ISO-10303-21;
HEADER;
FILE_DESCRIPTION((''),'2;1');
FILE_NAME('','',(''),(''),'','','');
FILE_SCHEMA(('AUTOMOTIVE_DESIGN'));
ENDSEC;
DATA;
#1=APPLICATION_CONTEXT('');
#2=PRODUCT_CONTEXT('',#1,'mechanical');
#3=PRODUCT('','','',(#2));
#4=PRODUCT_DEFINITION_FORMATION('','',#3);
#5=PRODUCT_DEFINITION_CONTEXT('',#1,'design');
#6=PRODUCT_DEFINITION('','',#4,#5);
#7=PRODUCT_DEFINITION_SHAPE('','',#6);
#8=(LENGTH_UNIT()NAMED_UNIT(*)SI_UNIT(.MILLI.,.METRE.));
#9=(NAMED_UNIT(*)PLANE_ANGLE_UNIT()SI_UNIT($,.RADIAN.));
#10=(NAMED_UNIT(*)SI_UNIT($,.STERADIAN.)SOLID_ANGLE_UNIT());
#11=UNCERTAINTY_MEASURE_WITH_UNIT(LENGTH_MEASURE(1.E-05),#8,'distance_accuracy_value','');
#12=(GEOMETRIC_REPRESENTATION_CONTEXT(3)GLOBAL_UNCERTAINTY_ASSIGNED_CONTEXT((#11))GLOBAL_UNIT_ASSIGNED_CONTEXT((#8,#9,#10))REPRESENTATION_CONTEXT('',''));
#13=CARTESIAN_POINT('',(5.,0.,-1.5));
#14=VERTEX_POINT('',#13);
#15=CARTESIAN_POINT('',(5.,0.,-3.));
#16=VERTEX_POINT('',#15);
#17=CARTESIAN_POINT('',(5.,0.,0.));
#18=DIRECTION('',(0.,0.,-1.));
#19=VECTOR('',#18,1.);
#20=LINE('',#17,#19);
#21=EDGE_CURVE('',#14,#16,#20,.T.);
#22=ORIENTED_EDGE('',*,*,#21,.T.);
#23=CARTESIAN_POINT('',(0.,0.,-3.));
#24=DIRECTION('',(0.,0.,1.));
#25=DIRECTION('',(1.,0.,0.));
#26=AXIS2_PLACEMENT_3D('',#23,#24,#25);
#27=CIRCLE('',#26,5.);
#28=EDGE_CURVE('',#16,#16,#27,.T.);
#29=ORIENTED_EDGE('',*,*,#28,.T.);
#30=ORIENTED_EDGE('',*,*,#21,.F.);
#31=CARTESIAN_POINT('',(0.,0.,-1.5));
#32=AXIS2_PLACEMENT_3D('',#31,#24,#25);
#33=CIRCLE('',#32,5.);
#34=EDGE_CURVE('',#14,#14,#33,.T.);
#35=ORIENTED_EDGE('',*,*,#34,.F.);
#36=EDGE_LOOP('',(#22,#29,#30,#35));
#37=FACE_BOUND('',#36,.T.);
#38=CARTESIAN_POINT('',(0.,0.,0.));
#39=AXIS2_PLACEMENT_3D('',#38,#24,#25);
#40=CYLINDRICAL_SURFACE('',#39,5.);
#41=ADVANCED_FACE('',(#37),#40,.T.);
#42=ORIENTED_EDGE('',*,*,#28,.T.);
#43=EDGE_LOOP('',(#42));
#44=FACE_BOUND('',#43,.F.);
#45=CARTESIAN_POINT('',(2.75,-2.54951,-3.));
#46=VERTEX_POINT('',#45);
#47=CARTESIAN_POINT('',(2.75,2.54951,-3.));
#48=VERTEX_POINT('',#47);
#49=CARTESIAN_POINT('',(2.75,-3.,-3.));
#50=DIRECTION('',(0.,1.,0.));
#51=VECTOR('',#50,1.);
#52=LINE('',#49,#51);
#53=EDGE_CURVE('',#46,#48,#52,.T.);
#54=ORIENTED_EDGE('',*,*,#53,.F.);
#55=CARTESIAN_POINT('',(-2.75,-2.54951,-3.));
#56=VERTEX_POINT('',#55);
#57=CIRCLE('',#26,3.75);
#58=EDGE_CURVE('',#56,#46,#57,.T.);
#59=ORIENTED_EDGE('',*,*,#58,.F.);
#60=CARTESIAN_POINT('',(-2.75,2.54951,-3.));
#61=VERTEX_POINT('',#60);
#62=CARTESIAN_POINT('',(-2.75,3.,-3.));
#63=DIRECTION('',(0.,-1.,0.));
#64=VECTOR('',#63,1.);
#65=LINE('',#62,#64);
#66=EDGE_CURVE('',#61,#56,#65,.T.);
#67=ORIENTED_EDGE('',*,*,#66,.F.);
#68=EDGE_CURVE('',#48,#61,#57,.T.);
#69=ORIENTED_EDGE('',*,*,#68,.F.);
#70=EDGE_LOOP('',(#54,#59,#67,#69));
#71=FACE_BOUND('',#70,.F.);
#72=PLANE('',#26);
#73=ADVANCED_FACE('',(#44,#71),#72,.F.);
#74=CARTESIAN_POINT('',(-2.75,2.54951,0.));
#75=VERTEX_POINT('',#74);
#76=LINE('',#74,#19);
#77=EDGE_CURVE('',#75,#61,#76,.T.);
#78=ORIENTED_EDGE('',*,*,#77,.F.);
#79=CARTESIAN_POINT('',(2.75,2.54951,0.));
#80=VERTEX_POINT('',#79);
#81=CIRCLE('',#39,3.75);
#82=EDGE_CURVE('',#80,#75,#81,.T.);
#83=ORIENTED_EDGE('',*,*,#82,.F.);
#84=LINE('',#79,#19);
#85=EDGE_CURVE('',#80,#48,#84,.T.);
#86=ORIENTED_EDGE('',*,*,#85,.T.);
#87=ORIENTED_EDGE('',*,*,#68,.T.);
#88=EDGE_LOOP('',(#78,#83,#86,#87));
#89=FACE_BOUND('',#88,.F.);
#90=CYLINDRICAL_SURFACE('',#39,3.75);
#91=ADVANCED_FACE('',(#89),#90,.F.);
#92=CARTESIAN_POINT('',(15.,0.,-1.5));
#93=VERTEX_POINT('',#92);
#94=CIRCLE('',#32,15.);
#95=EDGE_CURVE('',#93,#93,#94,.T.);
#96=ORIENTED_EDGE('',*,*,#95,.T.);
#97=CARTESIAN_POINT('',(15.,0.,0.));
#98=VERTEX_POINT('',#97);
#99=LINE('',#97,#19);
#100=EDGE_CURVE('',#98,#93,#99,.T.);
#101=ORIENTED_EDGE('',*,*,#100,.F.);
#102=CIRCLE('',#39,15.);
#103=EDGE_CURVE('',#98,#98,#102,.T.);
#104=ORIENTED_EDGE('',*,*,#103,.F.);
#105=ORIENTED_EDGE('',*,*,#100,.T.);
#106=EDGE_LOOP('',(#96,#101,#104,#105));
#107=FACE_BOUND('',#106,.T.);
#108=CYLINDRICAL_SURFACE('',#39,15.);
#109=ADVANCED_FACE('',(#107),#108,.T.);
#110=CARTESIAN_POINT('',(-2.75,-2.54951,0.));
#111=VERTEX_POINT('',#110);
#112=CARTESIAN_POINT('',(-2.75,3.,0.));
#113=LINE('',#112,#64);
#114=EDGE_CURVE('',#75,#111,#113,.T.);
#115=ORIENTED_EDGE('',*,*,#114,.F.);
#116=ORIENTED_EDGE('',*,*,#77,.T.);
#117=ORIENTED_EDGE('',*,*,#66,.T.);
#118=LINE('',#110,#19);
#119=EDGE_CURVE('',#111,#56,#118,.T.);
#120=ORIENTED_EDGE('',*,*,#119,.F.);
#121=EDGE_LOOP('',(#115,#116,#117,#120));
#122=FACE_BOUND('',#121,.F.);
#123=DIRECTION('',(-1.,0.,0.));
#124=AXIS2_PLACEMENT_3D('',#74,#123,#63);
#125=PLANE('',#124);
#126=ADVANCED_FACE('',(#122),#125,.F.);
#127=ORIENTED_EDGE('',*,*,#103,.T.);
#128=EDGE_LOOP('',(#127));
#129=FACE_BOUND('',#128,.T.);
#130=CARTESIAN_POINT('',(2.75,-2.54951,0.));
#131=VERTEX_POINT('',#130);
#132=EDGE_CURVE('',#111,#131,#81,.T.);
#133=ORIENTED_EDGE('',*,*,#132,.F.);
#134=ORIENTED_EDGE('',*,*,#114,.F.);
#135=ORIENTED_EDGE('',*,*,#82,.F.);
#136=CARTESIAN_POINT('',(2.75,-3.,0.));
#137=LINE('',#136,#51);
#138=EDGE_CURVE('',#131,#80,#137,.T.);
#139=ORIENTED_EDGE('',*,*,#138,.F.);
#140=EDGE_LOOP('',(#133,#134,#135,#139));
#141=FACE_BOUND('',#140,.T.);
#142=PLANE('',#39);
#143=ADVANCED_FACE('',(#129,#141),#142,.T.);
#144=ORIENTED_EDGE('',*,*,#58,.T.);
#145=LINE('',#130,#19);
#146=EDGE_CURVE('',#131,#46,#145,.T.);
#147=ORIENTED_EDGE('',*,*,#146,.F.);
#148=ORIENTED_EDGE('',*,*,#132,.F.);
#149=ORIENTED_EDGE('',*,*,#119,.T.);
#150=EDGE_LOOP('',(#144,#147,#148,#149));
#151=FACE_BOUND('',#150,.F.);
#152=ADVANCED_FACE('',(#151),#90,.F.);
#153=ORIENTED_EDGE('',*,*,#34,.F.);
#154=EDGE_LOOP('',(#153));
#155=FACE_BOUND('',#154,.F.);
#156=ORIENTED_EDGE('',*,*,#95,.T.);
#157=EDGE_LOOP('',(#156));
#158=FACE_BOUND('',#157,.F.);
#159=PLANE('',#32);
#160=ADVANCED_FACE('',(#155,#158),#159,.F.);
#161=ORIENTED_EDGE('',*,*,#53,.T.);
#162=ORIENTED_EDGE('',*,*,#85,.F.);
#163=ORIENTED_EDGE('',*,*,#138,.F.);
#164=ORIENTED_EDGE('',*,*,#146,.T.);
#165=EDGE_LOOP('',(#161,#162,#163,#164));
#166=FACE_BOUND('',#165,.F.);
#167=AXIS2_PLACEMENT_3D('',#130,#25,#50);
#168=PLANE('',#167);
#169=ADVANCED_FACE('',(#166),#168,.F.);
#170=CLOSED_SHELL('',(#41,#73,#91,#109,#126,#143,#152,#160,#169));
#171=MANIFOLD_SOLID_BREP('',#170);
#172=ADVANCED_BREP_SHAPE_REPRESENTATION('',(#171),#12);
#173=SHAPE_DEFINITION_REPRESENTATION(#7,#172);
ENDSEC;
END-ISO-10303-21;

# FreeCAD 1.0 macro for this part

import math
import FreeCAD as App
import Part
import Sketcher
Q = App.Units.Quantity

doc = App.newDocument("Part")
body = doc.addObject("PartDesign::Body", "Body")

sketch1 = body.newObject("Sketcher::SketchObject", "Sketch")
sketch1.AttachmentSupport = (doc.getObject("XY_Plane"), [""])
sketch1.MapMode = "FlatFace"
sketch1.addGeometry([
    Part.Circle(App.Vector(0, 0, 0), App.Vector(0, 0, 1), 5),
    Part.ArcOfCircle(Part.Circle(App.Vector(0, 0, 0), App.Vector(0, 0, 1), 3.8), math.radians(43), math.radians(137)),
    Part.LineSegment(App.Vector(2.8, 2.5, 0), App.Vector(2.8, -2.5, 0)),
    Part.ArcOfCircle(Part.Circle(App.Vector(0, 0, 0), App.Vector(0, 0, 1), 3.8), math.radians(-137), math.radians(-43)),
    Part.LineSegment(App.Vector(-2.8, -2.5, 0), App.Vector(-2.8, 2.5, 0)),
], False)
sketch1.addConstraint([
    Sketcher.Constraint("Coincident", 1, 1, 2, 1),
    Sketcher.Constraint("Coincident", 2, 2, 3, 2),
    Sketcher.Constraint("Coincident", 3, 1, 4, 1),
    Sketcher.Constraint("Coincident", 4, 2, 1, 2),
    Sketcher.Constraint("Vertical", 2),
    Sketcher.Constraint("Vertical", 4),
    Sketcher.Constraint("Coincident", 0, 3, -1, 1),
    Sketcher.Constraint("Coincident", 1, 3, -1, 1),
    Sketcher.Constraint("Coincident", 3, 3, -1, 1),
    Sketcher.Constraint("Equal", 1, 3),
    Sketcher.Constraint("Horizontal", 2, 2, 3, 1),
    Sketcher.Constraint("Diameter", 0, Q("10 mm")),
    Sketcher.Constraint("Radius", 1, Q("3.75 mm")),
    Sketcher.Constraint("DistanceX", 3, 1, 2, 2, Q("5.5 mm")),
])
pad1 = body.newObject("PartDesign::Pad", "Pad")
pad1.Profile = sketch1
pad1.Length = 3
pad1.Reversed = True

sketch2 = body.newObject("Sketcher::SketchObject", "Sketch001")
sketch2.AttachmentSupport = (doc.getObject("XY_Plane"), [""])
sketch2.MapMode = "FlatFace"
sketch2.addGeometry([
    Part.Circle(App.Vector(0, 0, 0), App.Vector(0, 0, 1), 15),
    Part.Circle(App.Vector(0, 0, 0), App.Vector(0, 0, 1), 4),
], False)
sketch2.addConstraint([
    Sketcher.Constraint("Coincident", 0, 3, -1, 1),
    Sketcher.Constraint("Coincident", 1, 3, -1, 1),
    Sketcher.Constraint("Diameter", 0, Q("30 mm")),
    Sketcher.Constraint("Diameter", 1, Q("8 mm")),
])
pad2 = body.newObject("PartDesign::Pad", "Pad001")
pad2.Profile = sketch2
pad2.Length = 1.5
pad2.Reversed = True

doc.recompute()
